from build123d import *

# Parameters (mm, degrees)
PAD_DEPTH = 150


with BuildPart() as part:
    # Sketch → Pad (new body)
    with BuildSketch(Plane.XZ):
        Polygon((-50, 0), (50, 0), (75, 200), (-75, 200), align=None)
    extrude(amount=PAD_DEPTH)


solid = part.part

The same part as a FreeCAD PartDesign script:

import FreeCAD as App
import Part
import Sketcher
from FreeCAD import Vector
Q = App.Units.Quantity

doc = App.newDocument("Part")
body = doc.addObject("PartDesign::Body", "Body")

# Sketch on XZ plane
sketch1 = body.newObject("Sketcher::SketchObject", "Sketch")
sketch1.AttachmentSupport = (doc.getObject("XZ_Plane"), [""])
sketch1.MapMode = "FlatFace"
sketch1.addGeometry([
    Part.LineSegment(Vector(-50, 0, 0), Vector(50, 0, 0)),
    Part.LineSegment(Vector(50, 0, 0), Vector(75, 200, 0)),
    Part.LineSegment(Vector(75, 200, 0), Vector(-75, 200, 0)),
    Part.LineSegment(Vector(-75, 200, 0), Vector(-50, 0, 0)),
], False)
sketch1.addConstraint([
    Sketcher.Constraint("Coincident", 0, 2, 1, 1),
    Sketcher.Constraint("Coincident", 1, 2, 2, 1),
    Sketcher.Constraint("Coincident", 2, 2, 3, 1),
    Sketcher.Constraint("Coincident", 3, 2, 0, 1),
    Sketcher.Constraint("Horizontal", 0),
    Sketcher.Constraint("Horizontal", 2),
    Sketcher.Constraint("Symmetric", 0, 2, 3, 2, -1, 1),
    Sketcher.Constraint("Equal", 1, 3),
    Sketcher.Constraint("DistanceX", 0, 1, 0, 2, Q("100 mm")),
    Sketcher.Constraint("DistanceX", 2, 2, 2, 1, Q("150 mm")),
    Sketcher.Constraint("DistanceY", -1, 1, 1, 2, Q("200 mm")),
])
pad1 = body.newObject("PartDesign::Pad", "Pad")
pad1.Profile = sketch1
pad1.Length = 150

doc.recompute()
